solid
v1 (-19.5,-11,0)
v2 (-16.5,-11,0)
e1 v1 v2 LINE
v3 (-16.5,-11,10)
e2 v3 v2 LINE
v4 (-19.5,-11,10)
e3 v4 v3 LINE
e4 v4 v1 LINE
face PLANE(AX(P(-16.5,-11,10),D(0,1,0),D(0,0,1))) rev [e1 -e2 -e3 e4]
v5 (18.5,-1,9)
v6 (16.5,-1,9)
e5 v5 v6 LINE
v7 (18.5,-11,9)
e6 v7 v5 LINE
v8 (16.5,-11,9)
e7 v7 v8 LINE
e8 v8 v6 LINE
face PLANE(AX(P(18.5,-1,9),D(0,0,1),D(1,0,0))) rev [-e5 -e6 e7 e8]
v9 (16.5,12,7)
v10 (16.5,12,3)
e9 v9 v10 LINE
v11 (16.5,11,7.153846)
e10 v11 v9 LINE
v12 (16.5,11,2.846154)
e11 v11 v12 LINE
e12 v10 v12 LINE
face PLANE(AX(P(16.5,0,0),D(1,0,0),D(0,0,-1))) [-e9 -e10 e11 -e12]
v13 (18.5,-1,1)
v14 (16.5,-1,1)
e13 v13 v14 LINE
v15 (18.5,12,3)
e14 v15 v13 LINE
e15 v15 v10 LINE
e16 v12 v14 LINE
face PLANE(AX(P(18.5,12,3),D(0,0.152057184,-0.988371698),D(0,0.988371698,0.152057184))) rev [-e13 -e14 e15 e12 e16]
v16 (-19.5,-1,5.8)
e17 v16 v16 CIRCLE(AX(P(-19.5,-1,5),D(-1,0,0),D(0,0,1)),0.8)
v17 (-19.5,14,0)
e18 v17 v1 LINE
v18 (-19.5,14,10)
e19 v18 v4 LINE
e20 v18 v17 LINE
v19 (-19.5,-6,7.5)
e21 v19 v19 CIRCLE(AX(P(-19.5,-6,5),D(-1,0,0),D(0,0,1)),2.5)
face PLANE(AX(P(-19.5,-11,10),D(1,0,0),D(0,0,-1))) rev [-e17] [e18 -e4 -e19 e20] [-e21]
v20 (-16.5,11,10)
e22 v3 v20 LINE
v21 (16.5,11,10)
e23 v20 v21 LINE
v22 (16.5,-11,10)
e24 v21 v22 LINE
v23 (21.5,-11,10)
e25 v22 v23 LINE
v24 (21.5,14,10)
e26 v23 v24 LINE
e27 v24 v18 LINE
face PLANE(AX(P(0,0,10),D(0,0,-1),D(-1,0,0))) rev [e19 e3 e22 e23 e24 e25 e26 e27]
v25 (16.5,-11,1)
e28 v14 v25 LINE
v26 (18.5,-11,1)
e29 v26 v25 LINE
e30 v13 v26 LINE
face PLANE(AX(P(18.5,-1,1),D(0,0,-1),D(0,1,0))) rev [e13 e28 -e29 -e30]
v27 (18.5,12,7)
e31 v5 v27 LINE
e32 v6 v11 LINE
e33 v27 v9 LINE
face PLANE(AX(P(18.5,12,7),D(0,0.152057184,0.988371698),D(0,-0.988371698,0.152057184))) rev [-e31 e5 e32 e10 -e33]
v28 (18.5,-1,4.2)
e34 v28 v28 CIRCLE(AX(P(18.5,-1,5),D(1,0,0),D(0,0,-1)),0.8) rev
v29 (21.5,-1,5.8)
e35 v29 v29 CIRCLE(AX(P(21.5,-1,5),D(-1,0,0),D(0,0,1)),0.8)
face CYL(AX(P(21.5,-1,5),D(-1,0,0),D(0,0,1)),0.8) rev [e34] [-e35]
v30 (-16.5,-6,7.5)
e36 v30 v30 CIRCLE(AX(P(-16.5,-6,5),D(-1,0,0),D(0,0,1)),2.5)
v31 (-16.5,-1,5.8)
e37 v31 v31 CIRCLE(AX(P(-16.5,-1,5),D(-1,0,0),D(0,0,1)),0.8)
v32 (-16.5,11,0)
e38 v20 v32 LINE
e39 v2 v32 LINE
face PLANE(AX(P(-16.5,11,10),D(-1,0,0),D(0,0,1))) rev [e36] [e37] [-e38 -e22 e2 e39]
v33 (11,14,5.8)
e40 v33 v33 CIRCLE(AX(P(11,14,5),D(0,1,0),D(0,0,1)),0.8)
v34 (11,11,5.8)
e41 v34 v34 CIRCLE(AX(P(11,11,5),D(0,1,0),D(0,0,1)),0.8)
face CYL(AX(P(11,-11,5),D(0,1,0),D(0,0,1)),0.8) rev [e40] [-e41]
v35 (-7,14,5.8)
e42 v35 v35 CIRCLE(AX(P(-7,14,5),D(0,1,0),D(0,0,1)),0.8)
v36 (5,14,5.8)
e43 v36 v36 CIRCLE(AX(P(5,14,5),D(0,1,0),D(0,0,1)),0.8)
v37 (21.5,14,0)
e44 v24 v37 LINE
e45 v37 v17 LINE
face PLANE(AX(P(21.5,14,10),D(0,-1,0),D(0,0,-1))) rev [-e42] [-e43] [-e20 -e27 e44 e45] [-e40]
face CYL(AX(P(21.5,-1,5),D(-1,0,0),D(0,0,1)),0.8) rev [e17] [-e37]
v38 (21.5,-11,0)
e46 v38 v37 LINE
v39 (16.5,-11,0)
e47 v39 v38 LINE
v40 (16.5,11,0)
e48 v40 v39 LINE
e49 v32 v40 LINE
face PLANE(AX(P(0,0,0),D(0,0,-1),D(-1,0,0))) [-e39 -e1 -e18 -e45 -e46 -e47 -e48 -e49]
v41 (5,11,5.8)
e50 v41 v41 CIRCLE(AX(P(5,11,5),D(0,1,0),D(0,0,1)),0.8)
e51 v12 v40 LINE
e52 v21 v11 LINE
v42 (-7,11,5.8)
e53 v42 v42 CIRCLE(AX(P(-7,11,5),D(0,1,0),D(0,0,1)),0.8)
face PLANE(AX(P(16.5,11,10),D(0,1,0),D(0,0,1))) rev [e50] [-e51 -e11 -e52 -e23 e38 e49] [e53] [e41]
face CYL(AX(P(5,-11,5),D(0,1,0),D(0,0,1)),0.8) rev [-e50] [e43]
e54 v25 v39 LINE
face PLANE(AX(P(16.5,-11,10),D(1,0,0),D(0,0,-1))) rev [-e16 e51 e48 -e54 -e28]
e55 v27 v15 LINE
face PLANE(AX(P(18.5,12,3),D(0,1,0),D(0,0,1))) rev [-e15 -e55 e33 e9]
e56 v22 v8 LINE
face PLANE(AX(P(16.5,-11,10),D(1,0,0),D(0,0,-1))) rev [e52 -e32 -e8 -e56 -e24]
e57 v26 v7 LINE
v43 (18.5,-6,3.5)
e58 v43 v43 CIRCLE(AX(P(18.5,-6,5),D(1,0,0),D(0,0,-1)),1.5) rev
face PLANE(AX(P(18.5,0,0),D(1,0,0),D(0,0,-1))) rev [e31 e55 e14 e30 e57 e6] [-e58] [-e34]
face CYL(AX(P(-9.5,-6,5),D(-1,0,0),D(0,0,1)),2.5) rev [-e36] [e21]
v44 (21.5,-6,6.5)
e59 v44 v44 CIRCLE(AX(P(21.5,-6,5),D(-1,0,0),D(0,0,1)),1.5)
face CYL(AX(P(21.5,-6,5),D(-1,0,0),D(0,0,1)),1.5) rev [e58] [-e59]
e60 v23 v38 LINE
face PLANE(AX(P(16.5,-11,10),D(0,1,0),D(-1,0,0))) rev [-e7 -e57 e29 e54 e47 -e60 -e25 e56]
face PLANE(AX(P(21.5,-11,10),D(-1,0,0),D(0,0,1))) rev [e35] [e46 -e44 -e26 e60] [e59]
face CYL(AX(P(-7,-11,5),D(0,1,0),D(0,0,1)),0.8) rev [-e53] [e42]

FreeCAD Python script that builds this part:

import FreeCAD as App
import Part
import Sketcher
Q = App.Units.Quantity

doc = App.newDocument("Part")
body = doc.addObject("PartDesign::Body", "Body")

# Sketch on XY plane
sketch1 = body.newObject("Sketcher::SketchObject", "Sketch")
sketch1.AttachmentSupport = (doc.getObject("XY_Plane"), [""])
sketch1.MapMode = "FlatFace"
sketch1.addGeometry(Part.LineSegment(App.Vector(-19.5, -11, 0), App.Vector(-16.5, -11, 0)), False)
sketch1.addGeometry(Part.LineSegment(App.Vector(-16.5, -11, 0), App.Vector(-16.5, 11, 0)), False)
sketch1.addGeometry(Part.LineSegment(App.Vector(-16.5, 11, 0), App.Vector(16.5, 11, 0)), False)
sketch1.addGeometry(Part.LineSegment(App.Vector(16.5, 11, 0), App.Vector(16.5, -11, 0)), False)
sketch1.addGeometry(Part.LineSegment(App.Vector(16.5, -11, 0), App.Vector(21.5, -11, 0)), False)
sketch1.addGeometry(Part.LineSegment(App.Vector(21.5, -11, 0), App.Vector(21.5, 14, 0)), False)
sketch1.addGeometry(Part.LineSegment(App.Vector(21.5, 14, 0), App.Vector(-19.5, 14, 0)), False)
sketch1.addGeometry(Part.LineSegment(App.Vector(-19.5, 14, 0), App.Vector(-19.5, -11, 0)), False)
sketch1.addConstraint(Sketcher.Constraint("Coincident", 0, 2, 1, 1))
sketch1.addConstraint(Sketcher.Constraint("Coincident", 1, 2, 2, 1))
sketch1.addConstraint(Sketcher.Constraint("Coincident", 2, 2, 3, 1))
sketch1.addConstraint(Sketcher.Constraint("Coincident", 3, 2, 4, 1))
sketch1.addConstraint(Sketcher.Constraint("Coincident", 4, 2, 5, 1))
sketch1.addConstraint(Sketcher.Constraint("Coincident", 5, 2, 6, 1))
sketch1.addConstraint(Sketcher.Constraint("Coincident", 6, 2, 7, 1))
sketch1.addConstraint(Sketcher.Constraint("Coincident", 7, 2, 0, 1))
sketch1.addConstraint(Sketcher.Constraint("Horizontal", 0))
sketch1.addConstraint(Sketcher.Constraint("Vertical", 1))
sketch1.addConstraint(Sketcher.Constraint("Horizontal", 2))
sketch1.addConstraint(Sketcher.Constraint("Vertical", 3))
sketch1.addConstraint(Sketcher.Constraint("Horizontal", 4))
sketch1.addConstraint(Sketcher.Constraint("Vertical", 5))
sketch1.addConstraint(Sketcher.Constraint("Horizontal", 6))
sketch1.addConstraint(Sketcher.Constraint("Vertical", 7))
sketch1.addConstraint(Sketcher.Constraint("Symmetric", 0, 2, 2, 2, -1, 1))
sketch1.addConstraint(Sketcher.Constraint("Horizontal", 0, 2, 3, 2))
sketch1.addConstraint(Sketcher.Constraint("DistanceX", 0, 1, 0, 2, Q("3 mm")))
sketch1.addConstraint(Sketcher.Constraint("DistanceX", 2, 1, 2, 2, Q("33 mm")))
sketch1.addConstraint(Sketcher.Constraint("DistanceX", 4, 1, 4, 2, Q("5 mm")))
sketch1.addConstraint(Sketcher.Constraint("DistanceY", 1, 1, 1, 2, Q("22 mm")))
sketch1.addConstraint(Sketcher.Constraint("DistanceY", 5, 1, 5, 2, Q("25 mm")))
pad1 = body.newObject("PartDesign::Pad", "Pad")
pad1.Profile = sketch1
pad1.Length = 10

# Sketch on YZ plane
sketch2 = body.newObject("Sketcher::SketchObject", "Sketch001")
sketch2.AttachmentSupport = (doc.getObject("YZ_Plane"), [""])
sketch2.MapMode = "FlatFace"
sketch2.AttachmentOffset = App.Placement(App.Vector(0, 0, -19.5), App.Rotation())
sketch2.addGeometry(Part.Circle(App.Vector(-6, 5, 0), App.Vector(0, 0, 1), 1.5), False)
sketch2.addGeometry(Part.Circle(App.Vector(-1, 5, 0), App.Vector(0, 0, 1), 0.8), False)
sketch2.addConstraint(Sketcher.Constraint("Horizontal", 0, 3, 1, 3))
sketch2.addConstraint(Sketcher.Constraint("Diameter", 0, Q("3 mm")))
sketch2.addConstraint(Sketcher.Constraint("Diameter", 1, Q("1.6 mm")))
sketch2.addConstraint(Sketcher.Constraint("DistanceX", 0, 3, -1, 1, Q("6 mm")))
sketch2.addConstraint(Sketcher.Constraint("DistanceY", -1, 1, 0, 3, Q("5 mm")))
sketch2.addConstraint(Sketcher.Constraint("DistanceX", 1, 3, -1, 1, Q("1 mm")))
pocket1 = body.newObject("PartDesign::Pocket", "Pocket")
pocket1.Profile = sketch2
pocket1.Type = "ThroughAll"
pocket1.Reversed = True

# Sketch on XZ plane
sketch3 = body.newObject("Sketcher::SketchObject", "Sketch002")
sketch3.AttachmentSupport = (doc.getObject("XZ_Plane"), [""])
sketch3.MapMode = "FlatFace"
sketch3.AttachmentOffset = App.Placement(App.Vector(0, 0, -14), App.Rotation())
sketch3.addGeometry(Part.Circle(App.Vector(-7, 5, 0), App.Vector(0, 0, 1), 0.8), False)
sketch3.addGeometry(Part.Circle(App.Vector(11, 5, 0), App.Vector(0, 0, 1), 0.8), False)
sketch3.addGeometry(Part.Circle(App.Vector(5, 5, 0), App.Vector(0, 0, 1), 0.8), False)
sketch3.addConstraint(Sketcher.Constraint("Equal", 0, 1))
sketch3.addConstraint(Sketcher.Constraint("Equal", 1, 2))
sketch3.addConstraint(Sketcher.Constraint("Horizontal", 0, 3, 1, 3))
sketch3.addConstraint(Sketcher.Constraint("Horizontal", 1, 3, 2, 3))
sketch3.addConstraint(Sketcher.Constraint("Diameter", 0, Q("1.6 mm")))
sketch3.addConstraint(Sketcher.Constraint("DistanceX", 0, 3, -1, 1, Q("7 mm")))
sketch3.addConstraint(Sketcher.Constraint("DistanceY", -1, 1, 0, 3, Q("5 mm")))
sketch3.addConstraint(Sketcher.Constraint("DistanceX", -1, 1, 1, 3, Q("11 mm")))
sketch3.addConstraint(Sketcher.Constraint("DistanceX", -1, 1, 2, 3, Q("5 mm")))
pocket2 = body.newObject("PartDesign::Pocket", "Pocket001")
pocket2.Profile = sketch3
pocket2.Type = "ThroughAll"
pocket2.Reversed = True

# Sketch on YZ plane
sketch4 = body.newObject("Sketcher::SketchObject", "Sketch003")
sketch4.AttachmentSupport = (doc.getObject("YZ_Plane"), [""])
sketch4.MapMode = "FlatFace"
sketch4.AttachmentOffset = App.Placement(App.Vector(0, 0, 16.5), App.Rotation())
sketch4.addGeometry(Part.LineSegment(App.Vector(-1, 1, 0), App.Vector(-11, 1, 0)), False)
sketch4.addGeometry(Part.LineSegment(App.Vector(-11, 1, 0), App.Vector(-11, 9, 0)), False)
sketch4.addGeometry(Part.LineSegment(App.Vector(-11, 9, 0), App.Vector(-1, 9, 0)), False)
sketch4.addGeometry(Part.LineSegment(App.Vector(-1, 9, 0), App.Vector(12, 7, 0)), False)
sketch4.addGeometry(Part.LineSegment(App.Vector(12, 7, 0), App.Vector(12, 3, 0)), False)
sketch4.addGeometry(Part.LineSegment(App.Vector(12, 3, 0), App.Vector(-1, 1, 0)), False)
sketch4.addConstraint(Sketcher.Constraint("Coincident", 0, 2, 1, 1))
sketch4.addConstraint(Sketcher.Constraint("Coincident", 1, 2, 2, 1))
sketch4.addConstraint(Sketcher.Constraint("Coincident", 2, 2, 3, 1))
sketch4.addConstraint(Sketcher.Constraint("Coincident", 3, 2, 4, 1))
sketch4.addConstraint(Sketcher.Constraint("Coincident", 4, 2, 5, 1))
sketch4.addConstraint(Sketcher.Constraint("Coincident", 5, 2, 0, 1))
sketch4.addConstraint(Sketcher.Constraint("Horizontal", 0))
sketch4.addConstraint(Sketcher.Constraint("Vertical", 1))
sketch4.addConstraint(Sketcher.Constraint("Horizontal", 2))
sketch4.addConstraint(Sketcher.Constraint("Vertical", 4))
sketch4.addConstraint(Sketcher.Constraint("Vertical", 2, 2, 5, 2))
sketch4.addConstraint(Sketcher.Constraint("Equal", 3, 5))
sketch4.addConstraint(Sketcher.Constraint("DistanceX", 0, 2, 0, 1, Q("10 mm")))
sketch4.addConstraint(Sketcher.Constraint("DistanceY", 1, 1, 1, 2, Q("8 mm")))
sketch4.addConstraint(Sketcher.Constraint("DistanceY", 4, 2, 4, 1, Q("4 mm")))
sketch4.addConstraint(Sketcher.Constraint("DistanceX", 0, 2, -1, 1, Q("11 mm")))
sketch4.addConstraint(Sketcher.Constraint("DistanceY", -1, 1, 0, 2, Q("1 mm")))
sketch4.addConstraint(Sketcher.Constraint("DistanceX", -1, 1, 3, 2, Q("12 mm")))
pocket3 = body.newObject("PartDesign::Pocket", "Pocket002")
pocket3.Profile = sketch4
pocket3.Length = 2
pocket3.Reversed = True

# Sketch on YZ plane
sketch5 = body.newObject("Sketcher::SketchObject", "Sketch004")
sketch5.AttachmentSupport = (doc.getObject("YZ_Plane"), [""])
sketch5.MapMode = "FlatFace"
sketch5.AttachmentOffset = App.Placement(App.Vector(0, 0, -19.5), App.Rotation())
sketch5.addGeometry(Part.Circle(App.Vector(-6, 5, 0), App.Vector(0, 0, 1), 2.5), False)
sketch5.addConstraint(Sketcher.Constraint("Diameter", 0, Q("5 mm")))
sketch5.addConstraint(Sketcher.Constraint("DistanceX", 0, 3, -1, 1, Q("6 mm")))
sketch5.addConstraint(Sketcher.Constraint("DistanceY", -1, 1, 0, 3, Q("5 mm")))
pocket4 = body.newObject("PartDesign::Pocket", "Pocket003")
pocket4.Profile = sketch5
pocket4.Length = 10
pocket4.Reversed = True

doc.recompute()
